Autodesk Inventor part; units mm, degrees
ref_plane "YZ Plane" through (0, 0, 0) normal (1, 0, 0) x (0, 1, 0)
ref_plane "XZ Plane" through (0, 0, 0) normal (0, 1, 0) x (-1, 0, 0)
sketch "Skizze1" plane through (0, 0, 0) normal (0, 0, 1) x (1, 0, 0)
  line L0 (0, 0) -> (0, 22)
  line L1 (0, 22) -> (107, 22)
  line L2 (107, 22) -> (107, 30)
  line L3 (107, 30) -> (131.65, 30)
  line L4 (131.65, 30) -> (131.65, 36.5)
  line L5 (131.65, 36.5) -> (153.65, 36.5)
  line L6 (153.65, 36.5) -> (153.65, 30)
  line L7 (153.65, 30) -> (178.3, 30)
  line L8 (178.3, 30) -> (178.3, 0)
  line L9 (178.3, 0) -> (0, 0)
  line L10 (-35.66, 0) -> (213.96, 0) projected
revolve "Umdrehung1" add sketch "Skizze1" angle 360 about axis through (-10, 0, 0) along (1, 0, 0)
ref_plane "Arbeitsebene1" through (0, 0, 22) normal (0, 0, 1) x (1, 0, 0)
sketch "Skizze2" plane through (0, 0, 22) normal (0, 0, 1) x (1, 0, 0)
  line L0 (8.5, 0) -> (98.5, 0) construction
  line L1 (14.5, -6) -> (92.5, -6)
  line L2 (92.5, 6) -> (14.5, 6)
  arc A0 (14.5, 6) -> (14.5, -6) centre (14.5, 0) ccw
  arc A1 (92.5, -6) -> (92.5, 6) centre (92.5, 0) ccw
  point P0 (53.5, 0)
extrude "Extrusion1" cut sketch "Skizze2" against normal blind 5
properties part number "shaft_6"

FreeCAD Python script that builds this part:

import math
import FreeCAD as App
import Part
import Sketcher


def add_polygon(sketch, points):
    """Adds a closed chain of lines whose ends are joined by coincident constraints."""
    first, n = sketch.GeometryCount, len(points)
    for a, b in zip(points, points[1:] + points[:1]):
        sketch.addGeometry(Part.LineSegment(App.Vector(*a, 0), App.Vector(*b, 0)), False)
    for i in range(n):
        sketch.addConstraint(Sketcher.Constraint("Coincident", first + i, 2, first + (i + 1) % n, 1))

doc = App.newDocument("Part")
body = doc.addObject("PartDesign::Body", "Body")

sketch1 = doc.addObject("Sketcher::SketchObject", "Sketch")
body.addObject(sketch1)
sketch1.AttachmentSupport = (doc.XY_Plane, [""])
sketch1.MapMode = "FlatFace"
add_polygon(sketch1, [(0, 22), (0, 0), (178, 0), (178, 30), (154, 30), (154, 36), (132, 36), (132, 30), (107, 30), (107, 22)])
sketch1.addConstraint([
    Sketcher.Constraint("Vertical", 0),
    Sketcher.Constraint("Horizontal", 1),
    Sketcher.Constraint("Vertical", 2),
    Sketcher.Constraint("Horizontal", 3),
    Sketcher.Constraint("Vertical", 4),
    Sketcher.Constraint("Horizontal", 5),
    Sketcher.Constraint("Vertical", 6),
    Sketcher.Constraint("Horizontal", 7),
    Sketcher.Constraint("Vertical", 8),
    Sketcher.Constraint("Horizontal", 9),
    Sketcher.Constraint("Coincident", 0, 2, -1, 1),
    Sketcher.Constraint("Horizontal", 3, 2, 6, 2),
    Sketcher.Constraint("Equal", 3, 7),
    Sketcher.Constraint("Equal", 5, 0),
    Sketcher.Constraint("DistanceX", 5, 2, 5, 1, 22.0),
    Sketcher.Constraint("DistanceX", 9, 2, 9, 1, 107.0),
    Sketcher.Constraint("DistanceY", 2, 1, 2, 2, 30.0),
    Sketcher.Constraint("DistanceX", 1, 1, 1, 2, 178.3),
    Sketcher.Constraint("DistanceY", 4, 1, 4, 2, 6.5),
])
revolution = doc.addObject("PartDesign::Revolution", "Revolution")
body.addObject(revolution)
revolution.Profile = sketch1
revolution.ReferenceAxis = (sketch1, ["H_Axis"])
revolution.Angle = 360

sketch2 = doc.addObject("Sketcher::SketchObject", "Sketch001")
body.addObject(sketch2)
sketch2.AttachmentSupport = (doc.XY_Plane, [""])
sketch2.MapMode = "FlatFace"
sketch2.AttachmentOffset = App.Placement(App.Vector(0, 0, 22), App.Rotation())
sketch2.addGeometry([
    Part.ArcOfCircle(Part.Circle(App.Vector(14, 0, 0), App.Vector(0, 0, 1), 6), math.radians(90), math.radians(270)),
    Part.LineSegment(App.Vector(14, -6, 0), App.Vector(92, -6, 0)),
    Part.ArcOfCircle(Part.Circle(App.Vector(92, 0, 0), App.Vector(0, 0, 1), 6), math.radians(-90), math.radians(90)),
    Part.LineSegment(App.Vector(92, 6, 0), App.Vector(14, 6, 0)),
], False)
sketch2.addConstraint([
    Sketcher.Constraint("Tangent", 0, 2, 1, 1),
    Sketcher.Constraint("Tangent", 1, 2, 2, 1),
    Sketcher.Constraint("Tangent", 2, 2, 3, 1),
    Sketcher.Constraint("Tangent", 3, 2, 0, 1),
    Sketcher.Constraint("Horizontal", 1),
    Sketcher.Constraint("Horizontal", 3),
    Sketcher.Constraint("PointOnObject", 0, 3, -1),
    Sketcher.Constraint("Radius", 0, 6.0),
    Sketcher.Constraint("DistanceX", 1, 1, 1, 2, 78.0),
    Sketcher.Constraint("DistanceX", -1, 1, 0, 3, 14.5),
])
pocket1 = doc.addObject("PartDesign::Pocket", "Pocket")
body.addObject(pocket1)
pocket1.Profile = sketch2
pocket1.Length = 5

doc.recompute()
